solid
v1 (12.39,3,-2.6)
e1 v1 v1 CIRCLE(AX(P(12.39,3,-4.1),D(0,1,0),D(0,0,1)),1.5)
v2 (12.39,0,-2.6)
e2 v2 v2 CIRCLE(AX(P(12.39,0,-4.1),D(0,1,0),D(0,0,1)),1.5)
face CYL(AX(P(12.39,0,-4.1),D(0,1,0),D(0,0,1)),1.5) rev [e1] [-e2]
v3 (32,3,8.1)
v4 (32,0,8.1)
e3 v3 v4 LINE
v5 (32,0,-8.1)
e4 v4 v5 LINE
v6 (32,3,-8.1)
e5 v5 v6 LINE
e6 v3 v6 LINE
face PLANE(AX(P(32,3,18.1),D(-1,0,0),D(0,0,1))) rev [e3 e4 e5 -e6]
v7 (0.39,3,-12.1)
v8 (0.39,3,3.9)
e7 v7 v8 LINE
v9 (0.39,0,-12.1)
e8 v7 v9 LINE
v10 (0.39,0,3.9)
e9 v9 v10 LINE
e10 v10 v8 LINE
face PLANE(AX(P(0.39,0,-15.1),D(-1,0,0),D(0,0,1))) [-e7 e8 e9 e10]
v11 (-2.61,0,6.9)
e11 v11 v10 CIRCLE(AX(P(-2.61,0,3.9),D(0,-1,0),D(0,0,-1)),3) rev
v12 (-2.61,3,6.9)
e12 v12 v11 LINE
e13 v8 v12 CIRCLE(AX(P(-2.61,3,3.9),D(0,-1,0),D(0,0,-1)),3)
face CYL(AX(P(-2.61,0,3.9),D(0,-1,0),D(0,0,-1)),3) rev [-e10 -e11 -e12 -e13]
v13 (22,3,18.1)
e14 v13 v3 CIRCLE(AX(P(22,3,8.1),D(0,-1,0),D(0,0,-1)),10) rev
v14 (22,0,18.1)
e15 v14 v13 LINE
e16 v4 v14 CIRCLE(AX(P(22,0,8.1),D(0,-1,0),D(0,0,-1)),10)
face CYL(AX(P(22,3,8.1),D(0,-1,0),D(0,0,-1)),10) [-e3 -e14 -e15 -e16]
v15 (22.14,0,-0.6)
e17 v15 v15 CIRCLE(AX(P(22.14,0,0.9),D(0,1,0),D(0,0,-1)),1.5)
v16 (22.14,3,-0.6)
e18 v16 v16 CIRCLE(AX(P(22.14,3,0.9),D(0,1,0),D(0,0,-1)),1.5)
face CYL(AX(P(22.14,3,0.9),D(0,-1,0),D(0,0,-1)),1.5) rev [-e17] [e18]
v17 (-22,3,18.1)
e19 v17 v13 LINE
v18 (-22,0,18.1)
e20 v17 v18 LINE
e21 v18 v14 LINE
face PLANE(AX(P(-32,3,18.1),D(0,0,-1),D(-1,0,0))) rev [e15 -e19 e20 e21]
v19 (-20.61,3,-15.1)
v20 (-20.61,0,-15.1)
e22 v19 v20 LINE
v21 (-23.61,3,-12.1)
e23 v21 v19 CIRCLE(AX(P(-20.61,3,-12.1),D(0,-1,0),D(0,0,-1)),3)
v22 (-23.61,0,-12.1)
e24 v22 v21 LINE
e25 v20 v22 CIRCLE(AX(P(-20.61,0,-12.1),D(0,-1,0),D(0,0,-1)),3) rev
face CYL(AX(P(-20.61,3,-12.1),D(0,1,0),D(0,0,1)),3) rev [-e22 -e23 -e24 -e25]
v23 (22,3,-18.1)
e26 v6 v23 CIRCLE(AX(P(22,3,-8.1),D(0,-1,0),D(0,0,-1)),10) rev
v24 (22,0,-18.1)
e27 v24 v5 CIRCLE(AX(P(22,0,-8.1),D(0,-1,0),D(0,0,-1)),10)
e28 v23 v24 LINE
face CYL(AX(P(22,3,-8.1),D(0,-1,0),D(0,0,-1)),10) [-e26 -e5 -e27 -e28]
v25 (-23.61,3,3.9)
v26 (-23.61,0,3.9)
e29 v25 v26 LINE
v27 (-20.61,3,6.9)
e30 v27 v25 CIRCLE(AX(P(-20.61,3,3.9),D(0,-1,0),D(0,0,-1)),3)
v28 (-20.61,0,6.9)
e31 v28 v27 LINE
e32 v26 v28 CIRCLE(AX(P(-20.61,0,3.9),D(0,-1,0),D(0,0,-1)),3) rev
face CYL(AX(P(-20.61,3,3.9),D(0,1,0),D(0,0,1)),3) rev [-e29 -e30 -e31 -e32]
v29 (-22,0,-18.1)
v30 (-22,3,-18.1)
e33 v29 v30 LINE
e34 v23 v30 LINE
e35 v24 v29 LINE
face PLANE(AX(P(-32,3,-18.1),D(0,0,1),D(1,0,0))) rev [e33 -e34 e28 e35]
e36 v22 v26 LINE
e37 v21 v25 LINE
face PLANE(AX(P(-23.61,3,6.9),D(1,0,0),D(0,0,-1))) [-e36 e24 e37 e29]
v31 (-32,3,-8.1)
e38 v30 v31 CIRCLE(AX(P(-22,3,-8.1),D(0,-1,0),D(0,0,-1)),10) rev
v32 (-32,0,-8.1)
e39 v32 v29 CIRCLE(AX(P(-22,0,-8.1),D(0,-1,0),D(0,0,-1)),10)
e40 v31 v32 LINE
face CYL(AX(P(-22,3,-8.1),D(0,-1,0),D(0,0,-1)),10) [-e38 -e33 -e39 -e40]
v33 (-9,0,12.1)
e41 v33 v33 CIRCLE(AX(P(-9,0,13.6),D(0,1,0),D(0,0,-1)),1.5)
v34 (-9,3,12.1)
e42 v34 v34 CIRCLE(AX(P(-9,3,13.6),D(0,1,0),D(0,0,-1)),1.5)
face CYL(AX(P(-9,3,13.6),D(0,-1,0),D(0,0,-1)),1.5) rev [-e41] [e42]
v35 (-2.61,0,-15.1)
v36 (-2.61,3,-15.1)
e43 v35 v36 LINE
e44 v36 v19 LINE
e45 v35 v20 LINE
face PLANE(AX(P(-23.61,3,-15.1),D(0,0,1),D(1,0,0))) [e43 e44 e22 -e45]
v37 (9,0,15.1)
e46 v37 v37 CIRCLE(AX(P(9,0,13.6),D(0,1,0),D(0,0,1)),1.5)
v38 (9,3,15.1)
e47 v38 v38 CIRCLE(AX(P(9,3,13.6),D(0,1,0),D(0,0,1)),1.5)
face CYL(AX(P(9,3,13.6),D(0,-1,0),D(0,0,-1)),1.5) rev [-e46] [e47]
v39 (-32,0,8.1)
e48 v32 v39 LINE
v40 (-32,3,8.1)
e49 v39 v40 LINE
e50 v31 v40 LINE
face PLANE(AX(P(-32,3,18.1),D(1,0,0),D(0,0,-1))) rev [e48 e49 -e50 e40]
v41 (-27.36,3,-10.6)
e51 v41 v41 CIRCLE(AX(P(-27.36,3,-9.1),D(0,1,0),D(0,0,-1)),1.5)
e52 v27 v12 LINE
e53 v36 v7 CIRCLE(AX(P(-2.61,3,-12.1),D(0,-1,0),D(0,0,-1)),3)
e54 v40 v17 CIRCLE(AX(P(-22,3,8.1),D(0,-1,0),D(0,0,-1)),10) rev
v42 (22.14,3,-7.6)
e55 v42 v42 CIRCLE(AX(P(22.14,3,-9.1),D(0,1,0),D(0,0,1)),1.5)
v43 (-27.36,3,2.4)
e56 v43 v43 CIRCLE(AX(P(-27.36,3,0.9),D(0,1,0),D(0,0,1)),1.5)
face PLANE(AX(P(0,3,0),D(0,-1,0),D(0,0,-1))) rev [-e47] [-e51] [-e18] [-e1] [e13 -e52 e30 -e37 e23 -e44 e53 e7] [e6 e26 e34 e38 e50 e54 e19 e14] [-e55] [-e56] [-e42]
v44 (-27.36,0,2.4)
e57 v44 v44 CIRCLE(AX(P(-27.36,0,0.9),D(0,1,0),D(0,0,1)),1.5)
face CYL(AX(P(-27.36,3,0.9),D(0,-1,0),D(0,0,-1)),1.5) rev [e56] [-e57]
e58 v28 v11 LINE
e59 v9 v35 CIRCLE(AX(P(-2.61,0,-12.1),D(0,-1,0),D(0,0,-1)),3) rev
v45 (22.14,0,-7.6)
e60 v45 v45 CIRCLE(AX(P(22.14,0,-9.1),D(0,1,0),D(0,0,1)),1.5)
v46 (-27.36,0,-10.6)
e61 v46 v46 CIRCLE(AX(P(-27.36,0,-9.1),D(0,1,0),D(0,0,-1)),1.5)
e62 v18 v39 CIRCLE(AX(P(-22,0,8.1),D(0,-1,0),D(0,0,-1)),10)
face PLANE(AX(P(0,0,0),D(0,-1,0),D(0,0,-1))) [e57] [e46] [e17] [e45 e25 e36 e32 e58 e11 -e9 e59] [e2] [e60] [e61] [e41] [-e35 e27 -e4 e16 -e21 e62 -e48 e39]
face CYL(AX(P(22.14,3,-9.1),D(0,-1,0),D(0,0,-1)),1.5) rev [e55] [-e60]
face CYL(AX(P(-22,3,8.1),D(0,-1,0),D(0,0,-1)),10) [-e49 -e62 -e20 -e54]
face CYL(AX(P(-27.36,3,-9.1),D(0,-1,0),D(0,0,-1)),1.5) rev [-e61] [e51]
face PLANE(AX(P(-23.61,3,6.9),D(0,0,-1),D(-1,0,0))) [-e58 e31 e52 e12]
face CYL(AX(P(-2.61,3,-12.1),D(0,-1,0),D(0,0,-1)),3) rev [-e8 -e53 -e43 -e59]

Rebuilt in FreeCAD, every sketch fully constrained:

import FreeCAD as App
import Part
import Sketcher
Q = App.Units.Quantity


def edges_at(feature, points):
    """Names of the edges that pass closest to the given points."""
    edges = feature.Shape.Edges
    near = lambda p: min(range(len(edges)), key=lambda i: edges[i].distToShape(Part.Vertex(*p))[0])
    return sorted({f"Edge{near(p) + 1}" for p in points})

doc = App.newDocument("Part")
params = doc.addObject("Spreadsheet::Sheet", "Params")
for row, (alias, value) in enumerate([
    ("sketch1_diameter", "3 mm"),
    ("sketch1_width", "64 mm"),
    ("sketch1_width2", "42 mm"),
    ("sketch1_height", "22 mm"),
    ("sketch1_height2", "36.2 mm"),
    ("pad1_length", "3 mm"),
    ("sketch2_width", "18 mm"),
    ("sketch2_height", "22 mm"),
    ("pad2_length", "3 mm"),
    ("sketch3_diameter", "3 mm"),
    ("pocket1_length", "3 mm"),
    ("fillet_radius", "10 mm"),
    ("fillet2_radius", "3 mm"),
], start=1):
    params.set(f"A{row}", alias)
    params.set(f"B{row}", "=" + value)
    params.setAlias(f"B{row}", alias)

body = doc.addObject("PartDesign::Body", "Body")

sketch1 = doc.addObject("Sketcher::SketchObject", "Sketch")
body.addObject(sketch1)
sketch1.AttachmentSupport = (doc.XZ_Plane, [""])
sketch1.MapMode = "FlatFace"
sketch1.addGeometry([
    Part.LineSegment(App.Vector(-32, -18.1, 0), App.Vector(-32, 18.1, 0)),
    Part.LineSegment(App.Vector(-32, 18.1, 0), App.Vector(32, 18.1, 0)),
    Part.LineSegment(App.Vector(32, 18.1, 0), App.Vector(32, -18.1, 0)),
    Part.LineSegment(App.Vector(32, -18.1, 0), App.Vector(-32, -18.1, 0)),
    Part.Circle(App.Vector(-9, 13.6, 0), App.Vector(0, 0, 1), 1.5),
    Part.Circle(App.Vector(-27.36, 0.9, 0), App.Vector(0, 0, 1), 1.5),
    Part.Circle(App.Vector(9, 13.6, 0), App.Vector(0, 0, 1), 1.5),
    Part.Circle(App.Vector(22.14, 0.9, 0), App.Vector(0, 0, 1), 1.5),
    Part.Circle(App.Vector(-27.36, -9.1, 0), App.Vector(0, 0, 1), 1.5),
    Part.LineSegment(App.Vector(18.39, 6.9, 0), App.Vector(-23.61, 6.9, 0)),
    Part.LineSegment(App.Vector(-23.61, 6.9, 0), App.Vector(-23.61, -15.1, 0)),
    Part.LineSegment(App.Vector(-23.61, -15.1, 0), App.Vector(18.39, -15.1, 0)),
    Part.LineSegment(App.Vector(18.39, -15.1, 0), App.Vector(18.39, 6.9, 0)),
    Part.Circle(App.Vector(22.14, -9.1, 0), App.Vector(0, 0, 1), 1.5),
], False)
sketch1.addConstraint([
    Sketcher.Constraint("Coincident", 0, 2, 1, 1),
    Sketcher.Constraint("Coincident", 1, 2, 2, 1),
    Sketcher.Constraint("Coincident", 2, 2, 3, 1),
    Sketcher.Constraint("Coincident", 3, 2, 0, 1),
    Sketcher.Constraint("Coincident", 9, 2, 10, 1),
    Sketcher.Constraint("Coincident", 10, 2, 11, 1),
    Sketcher.Constraint("Coincident", 11, 2, 12, 1),
    Sketcher.Constraint("Coincident", 12, 2, 9, 1),
    Sketcher.Constraint("Vertical", 0),
    Sketcher.Constraint("Horizontal", 1),
    Sketcher.Constraint("Vertical", 2),
    Sketcher.Constraint("Horizontal", 3),
    Sketcher.Constraint("Horizontal", 9),
    Sketcher.Constraint("Vertical", 10),
    Sketcher.Constraint("Horizontal", 11),
    Sketcher.Constraint("Vertical", 12),
    Sketcher.Constraint("Equal", 4, 5),
    Sketcher.Constraint("Equal", 5, 6),
    Sketcher.Constraint("Equal", 6, 7),
    Sketcher.Constraint("Equal", 7, 8),
    Sketcher.Constraint("Equal", 8, 13),
    Sketcher.Constraint("Symmetric", 0, 2, 2, 2, -1, 1),
    Sketcher.Constraint("Symmetric", 4, 3, 6, 3, -2),
    Sketcher.Constraint("Horizontal", 5, 3, 7, 3),
    Sketcher.Constraint("Horizontal", 8, 3, 13, 3),
    Sketcher.Constraint("Vertical", 5, 3, 8, 3),
    Sketcher.Constraint("Vertical", 7, 3, 13, 3),
    Sketcher.Constraint("Diameter", 4, Q("3 mm")),
    Sketcher.Constraint("DistanceX", 1, 1, 1, 2, Q("64 mm")),
    Sketcher.Constraint("DistanceX", 9, 2, 9, 1, Q("42 mm")),
    Sketcher.Constraint("DistanceY", 10, 2, 10, 1, Q("22 mm")),
    Sketcher.Constraint("DistanceY", 0, 1, 0, 2, Q("36.2 mm")),
    Sketcher.Constraint("DistanceX", 4, 3, -1, 1, Q("9 mm")),
    Sketcher.Constraint("DistanceY", 8, 3, 5, 3, Q("10 mm")),
    Sketcher.Constraint("DistanceY", 2, 2, 13, 3, Q("9 mm")),
    Sketcher.Constraint("DistanceY", 5, 3, 9, 2, Q("6 mm")),
    Sketcher.Constraint("DistanceY", -1, 1, 4, 3, Q("13.6 mm")),
    Sketcher.Constraint("DistanceX", 5, 3, 7, 3, Q("49.5 mm")),
    Sketcher.Constraint("DistanceX", 5, 3, -1, 1, Q("27.36 mm")),
    Sketcher.Constraint("DistanceX", 9, 2, -1, 1, Q("23.61 mm")),
])
sketch1.setExpression("Constraints[27]", "Params.sketch1_diameter")
sketch1.setExpression("Constraints[28]", "Params.sketch1_width")
sketch1.setExpression("Constraints[29]", "Params.sketch1_width2")
sketch1.setExpression("Constraints[30]", "Params.sketch1_height")
sketch1.setExpression("Constraints[31]", "Params.sketch1_height2")
pad1 = doc.addObject("PartDesign::Pad", "Pad")
body.addObject(pad1)
pad1.Profile = sketch1
pad1.setExpression("Length", "Params.pad1_length")
pad1.Reversed = True

sketch2 = doc.addObject("Sketcher::SketchObject", "Sketch001")
body.addObject(sketch2)
sketch2.AttachmentSupport = (doc.XZ_Plane, [""])
sketch2.MapMode = "FlatFace"
sketch2.AttachmentOffset = App.Placement(App.Vector(0, 0, -3), App.Rotation())
sketch2.addGeometry([
    Part.LineSegment(App.Vector(0.39, -15.1, 0), App.Vector(0.39, 6.9, 0)),
    Part.LineSegment(App.Vector(0.39, 6.9, 0), App.Vector(18.39, 6.9, 0)),
    Part.LineSegment(App.Vector(18.39, 6.9, 0), App.Vector(18.39, -15.1, 0)),
    Part.LineSegment(App.Vector(18.39, -15.1, 0), App.Vector(0.39, -15.1, 0)),
], False)
sketch2.addConstraint([
    Sketcher.Constraint("Coincident", 0, 2, 1, 1),
    Sketcher.Constraint("Coincident", 1, 2, 2, 1),
    Sketcher.Constraint("Coincident", 2, 2, 3, 1),
    Sketcher.Constraint("Coincident", 3, 2, 0, 1),
    Sketcher.Constraint("Vertical", 0),
    Sketcher.Constraint("Horizontal", 1),
    Sketcher.Constraint("Vertical", 2),
    Sketcher.Constraint("Horizontal", 3),
    Sketcher.Constraint("DistanceX", 1, 1, 1, 2, Q("18 mm")),
    Sketcher.Constraint("DistanceY", 0, 1, 0, 2, Q("22 mm")),
    Sketcher.Constraint("DistanceY", -1, 1, 0, 2, Q("6.9 mm")),
    Sketcher.Constraint("DistanceX", -1, 1, 0, 2, Q("0.39 mm")),
])
sketch2.setExpression("Constraints[8]", "Params.sketch2_width")
sketch2.setExpression("Constraints[9]", "Params.sketch2_height")
pad2 = doc.addObject("PartDesign::Pad", "Pad001")
body.addObject(pad2)
pad2.Profile = sketch2
pad2.setExpression("Length", "Params.pad2_length")

sketch3 = doc.addObject("Sketcher::SketchObject", "Sketch002")
body.addObject(sketch3)
sketch3.AttachmentSupport = (doc.XZ_Plane, [""])
sketch3.MapMode = "FlatFace"
sketch3.AttachmentOffset = App.Placement(App.Vector(0, 0, -3), App.Rotation())
sketch3.addGeometry(Part.Circle(App.Vector(12.39, -4.1, 0), App.Vector(0, 0, 1), 1.5), False)
sketch3.addConstraint([
    Sketcher.Constraint("Diameter", 0, Q("3 mm")),
    Sketcher.Constraint("DistanceY", 0, 3, -1, 1, Q("4.1 mm")),
    Sketcher.Constraint("DistanceX", -1, 1, 0, 3, Q("12.39 mm")),
])
sketch3.setExpression("Constraints[0]", "Params.sketch3_diameter")
pocket1 = doc.addObject("PartDesign::Pocket", "Pocket")
body.addObject(pocket1)
pocket1.Profile = sketch3
pocket1.setExpression("Length", "Params.pocket1_length")
pocket1.Reversed = True
doc.recompute()

fillet = doc.addObject("PartDesign::Fillet", "Fillet")
body.addObject(fillet)
fillet.Base = (pocket1, edges_at(pocket1, [
    (32, 1.5, 18.1),
    (-32, 1.5, 18.1),
    (-32, 1.5, -18.1),
    (32, 1.5, -18.1),
]))
fillet.setExpression("Radius", "Params.fillet_radius")
doc.recompute()

fillet2 = doc.addObject("PartDesign::Fillet", "Fillet001")
body.addObject(fillet2)
fillet2.Base = (fillet, edges_at(fillet, [
    (-23.61, 1.5, -15.1),
    (-23.61, 1.5, 6.9),
    (0.39, 1.5, -15.1),
    (0.39, 1.5, 6.9),
]))
fillet2.setExpression("Radius", "Params.fillet2_radius")

doc.recompute()
